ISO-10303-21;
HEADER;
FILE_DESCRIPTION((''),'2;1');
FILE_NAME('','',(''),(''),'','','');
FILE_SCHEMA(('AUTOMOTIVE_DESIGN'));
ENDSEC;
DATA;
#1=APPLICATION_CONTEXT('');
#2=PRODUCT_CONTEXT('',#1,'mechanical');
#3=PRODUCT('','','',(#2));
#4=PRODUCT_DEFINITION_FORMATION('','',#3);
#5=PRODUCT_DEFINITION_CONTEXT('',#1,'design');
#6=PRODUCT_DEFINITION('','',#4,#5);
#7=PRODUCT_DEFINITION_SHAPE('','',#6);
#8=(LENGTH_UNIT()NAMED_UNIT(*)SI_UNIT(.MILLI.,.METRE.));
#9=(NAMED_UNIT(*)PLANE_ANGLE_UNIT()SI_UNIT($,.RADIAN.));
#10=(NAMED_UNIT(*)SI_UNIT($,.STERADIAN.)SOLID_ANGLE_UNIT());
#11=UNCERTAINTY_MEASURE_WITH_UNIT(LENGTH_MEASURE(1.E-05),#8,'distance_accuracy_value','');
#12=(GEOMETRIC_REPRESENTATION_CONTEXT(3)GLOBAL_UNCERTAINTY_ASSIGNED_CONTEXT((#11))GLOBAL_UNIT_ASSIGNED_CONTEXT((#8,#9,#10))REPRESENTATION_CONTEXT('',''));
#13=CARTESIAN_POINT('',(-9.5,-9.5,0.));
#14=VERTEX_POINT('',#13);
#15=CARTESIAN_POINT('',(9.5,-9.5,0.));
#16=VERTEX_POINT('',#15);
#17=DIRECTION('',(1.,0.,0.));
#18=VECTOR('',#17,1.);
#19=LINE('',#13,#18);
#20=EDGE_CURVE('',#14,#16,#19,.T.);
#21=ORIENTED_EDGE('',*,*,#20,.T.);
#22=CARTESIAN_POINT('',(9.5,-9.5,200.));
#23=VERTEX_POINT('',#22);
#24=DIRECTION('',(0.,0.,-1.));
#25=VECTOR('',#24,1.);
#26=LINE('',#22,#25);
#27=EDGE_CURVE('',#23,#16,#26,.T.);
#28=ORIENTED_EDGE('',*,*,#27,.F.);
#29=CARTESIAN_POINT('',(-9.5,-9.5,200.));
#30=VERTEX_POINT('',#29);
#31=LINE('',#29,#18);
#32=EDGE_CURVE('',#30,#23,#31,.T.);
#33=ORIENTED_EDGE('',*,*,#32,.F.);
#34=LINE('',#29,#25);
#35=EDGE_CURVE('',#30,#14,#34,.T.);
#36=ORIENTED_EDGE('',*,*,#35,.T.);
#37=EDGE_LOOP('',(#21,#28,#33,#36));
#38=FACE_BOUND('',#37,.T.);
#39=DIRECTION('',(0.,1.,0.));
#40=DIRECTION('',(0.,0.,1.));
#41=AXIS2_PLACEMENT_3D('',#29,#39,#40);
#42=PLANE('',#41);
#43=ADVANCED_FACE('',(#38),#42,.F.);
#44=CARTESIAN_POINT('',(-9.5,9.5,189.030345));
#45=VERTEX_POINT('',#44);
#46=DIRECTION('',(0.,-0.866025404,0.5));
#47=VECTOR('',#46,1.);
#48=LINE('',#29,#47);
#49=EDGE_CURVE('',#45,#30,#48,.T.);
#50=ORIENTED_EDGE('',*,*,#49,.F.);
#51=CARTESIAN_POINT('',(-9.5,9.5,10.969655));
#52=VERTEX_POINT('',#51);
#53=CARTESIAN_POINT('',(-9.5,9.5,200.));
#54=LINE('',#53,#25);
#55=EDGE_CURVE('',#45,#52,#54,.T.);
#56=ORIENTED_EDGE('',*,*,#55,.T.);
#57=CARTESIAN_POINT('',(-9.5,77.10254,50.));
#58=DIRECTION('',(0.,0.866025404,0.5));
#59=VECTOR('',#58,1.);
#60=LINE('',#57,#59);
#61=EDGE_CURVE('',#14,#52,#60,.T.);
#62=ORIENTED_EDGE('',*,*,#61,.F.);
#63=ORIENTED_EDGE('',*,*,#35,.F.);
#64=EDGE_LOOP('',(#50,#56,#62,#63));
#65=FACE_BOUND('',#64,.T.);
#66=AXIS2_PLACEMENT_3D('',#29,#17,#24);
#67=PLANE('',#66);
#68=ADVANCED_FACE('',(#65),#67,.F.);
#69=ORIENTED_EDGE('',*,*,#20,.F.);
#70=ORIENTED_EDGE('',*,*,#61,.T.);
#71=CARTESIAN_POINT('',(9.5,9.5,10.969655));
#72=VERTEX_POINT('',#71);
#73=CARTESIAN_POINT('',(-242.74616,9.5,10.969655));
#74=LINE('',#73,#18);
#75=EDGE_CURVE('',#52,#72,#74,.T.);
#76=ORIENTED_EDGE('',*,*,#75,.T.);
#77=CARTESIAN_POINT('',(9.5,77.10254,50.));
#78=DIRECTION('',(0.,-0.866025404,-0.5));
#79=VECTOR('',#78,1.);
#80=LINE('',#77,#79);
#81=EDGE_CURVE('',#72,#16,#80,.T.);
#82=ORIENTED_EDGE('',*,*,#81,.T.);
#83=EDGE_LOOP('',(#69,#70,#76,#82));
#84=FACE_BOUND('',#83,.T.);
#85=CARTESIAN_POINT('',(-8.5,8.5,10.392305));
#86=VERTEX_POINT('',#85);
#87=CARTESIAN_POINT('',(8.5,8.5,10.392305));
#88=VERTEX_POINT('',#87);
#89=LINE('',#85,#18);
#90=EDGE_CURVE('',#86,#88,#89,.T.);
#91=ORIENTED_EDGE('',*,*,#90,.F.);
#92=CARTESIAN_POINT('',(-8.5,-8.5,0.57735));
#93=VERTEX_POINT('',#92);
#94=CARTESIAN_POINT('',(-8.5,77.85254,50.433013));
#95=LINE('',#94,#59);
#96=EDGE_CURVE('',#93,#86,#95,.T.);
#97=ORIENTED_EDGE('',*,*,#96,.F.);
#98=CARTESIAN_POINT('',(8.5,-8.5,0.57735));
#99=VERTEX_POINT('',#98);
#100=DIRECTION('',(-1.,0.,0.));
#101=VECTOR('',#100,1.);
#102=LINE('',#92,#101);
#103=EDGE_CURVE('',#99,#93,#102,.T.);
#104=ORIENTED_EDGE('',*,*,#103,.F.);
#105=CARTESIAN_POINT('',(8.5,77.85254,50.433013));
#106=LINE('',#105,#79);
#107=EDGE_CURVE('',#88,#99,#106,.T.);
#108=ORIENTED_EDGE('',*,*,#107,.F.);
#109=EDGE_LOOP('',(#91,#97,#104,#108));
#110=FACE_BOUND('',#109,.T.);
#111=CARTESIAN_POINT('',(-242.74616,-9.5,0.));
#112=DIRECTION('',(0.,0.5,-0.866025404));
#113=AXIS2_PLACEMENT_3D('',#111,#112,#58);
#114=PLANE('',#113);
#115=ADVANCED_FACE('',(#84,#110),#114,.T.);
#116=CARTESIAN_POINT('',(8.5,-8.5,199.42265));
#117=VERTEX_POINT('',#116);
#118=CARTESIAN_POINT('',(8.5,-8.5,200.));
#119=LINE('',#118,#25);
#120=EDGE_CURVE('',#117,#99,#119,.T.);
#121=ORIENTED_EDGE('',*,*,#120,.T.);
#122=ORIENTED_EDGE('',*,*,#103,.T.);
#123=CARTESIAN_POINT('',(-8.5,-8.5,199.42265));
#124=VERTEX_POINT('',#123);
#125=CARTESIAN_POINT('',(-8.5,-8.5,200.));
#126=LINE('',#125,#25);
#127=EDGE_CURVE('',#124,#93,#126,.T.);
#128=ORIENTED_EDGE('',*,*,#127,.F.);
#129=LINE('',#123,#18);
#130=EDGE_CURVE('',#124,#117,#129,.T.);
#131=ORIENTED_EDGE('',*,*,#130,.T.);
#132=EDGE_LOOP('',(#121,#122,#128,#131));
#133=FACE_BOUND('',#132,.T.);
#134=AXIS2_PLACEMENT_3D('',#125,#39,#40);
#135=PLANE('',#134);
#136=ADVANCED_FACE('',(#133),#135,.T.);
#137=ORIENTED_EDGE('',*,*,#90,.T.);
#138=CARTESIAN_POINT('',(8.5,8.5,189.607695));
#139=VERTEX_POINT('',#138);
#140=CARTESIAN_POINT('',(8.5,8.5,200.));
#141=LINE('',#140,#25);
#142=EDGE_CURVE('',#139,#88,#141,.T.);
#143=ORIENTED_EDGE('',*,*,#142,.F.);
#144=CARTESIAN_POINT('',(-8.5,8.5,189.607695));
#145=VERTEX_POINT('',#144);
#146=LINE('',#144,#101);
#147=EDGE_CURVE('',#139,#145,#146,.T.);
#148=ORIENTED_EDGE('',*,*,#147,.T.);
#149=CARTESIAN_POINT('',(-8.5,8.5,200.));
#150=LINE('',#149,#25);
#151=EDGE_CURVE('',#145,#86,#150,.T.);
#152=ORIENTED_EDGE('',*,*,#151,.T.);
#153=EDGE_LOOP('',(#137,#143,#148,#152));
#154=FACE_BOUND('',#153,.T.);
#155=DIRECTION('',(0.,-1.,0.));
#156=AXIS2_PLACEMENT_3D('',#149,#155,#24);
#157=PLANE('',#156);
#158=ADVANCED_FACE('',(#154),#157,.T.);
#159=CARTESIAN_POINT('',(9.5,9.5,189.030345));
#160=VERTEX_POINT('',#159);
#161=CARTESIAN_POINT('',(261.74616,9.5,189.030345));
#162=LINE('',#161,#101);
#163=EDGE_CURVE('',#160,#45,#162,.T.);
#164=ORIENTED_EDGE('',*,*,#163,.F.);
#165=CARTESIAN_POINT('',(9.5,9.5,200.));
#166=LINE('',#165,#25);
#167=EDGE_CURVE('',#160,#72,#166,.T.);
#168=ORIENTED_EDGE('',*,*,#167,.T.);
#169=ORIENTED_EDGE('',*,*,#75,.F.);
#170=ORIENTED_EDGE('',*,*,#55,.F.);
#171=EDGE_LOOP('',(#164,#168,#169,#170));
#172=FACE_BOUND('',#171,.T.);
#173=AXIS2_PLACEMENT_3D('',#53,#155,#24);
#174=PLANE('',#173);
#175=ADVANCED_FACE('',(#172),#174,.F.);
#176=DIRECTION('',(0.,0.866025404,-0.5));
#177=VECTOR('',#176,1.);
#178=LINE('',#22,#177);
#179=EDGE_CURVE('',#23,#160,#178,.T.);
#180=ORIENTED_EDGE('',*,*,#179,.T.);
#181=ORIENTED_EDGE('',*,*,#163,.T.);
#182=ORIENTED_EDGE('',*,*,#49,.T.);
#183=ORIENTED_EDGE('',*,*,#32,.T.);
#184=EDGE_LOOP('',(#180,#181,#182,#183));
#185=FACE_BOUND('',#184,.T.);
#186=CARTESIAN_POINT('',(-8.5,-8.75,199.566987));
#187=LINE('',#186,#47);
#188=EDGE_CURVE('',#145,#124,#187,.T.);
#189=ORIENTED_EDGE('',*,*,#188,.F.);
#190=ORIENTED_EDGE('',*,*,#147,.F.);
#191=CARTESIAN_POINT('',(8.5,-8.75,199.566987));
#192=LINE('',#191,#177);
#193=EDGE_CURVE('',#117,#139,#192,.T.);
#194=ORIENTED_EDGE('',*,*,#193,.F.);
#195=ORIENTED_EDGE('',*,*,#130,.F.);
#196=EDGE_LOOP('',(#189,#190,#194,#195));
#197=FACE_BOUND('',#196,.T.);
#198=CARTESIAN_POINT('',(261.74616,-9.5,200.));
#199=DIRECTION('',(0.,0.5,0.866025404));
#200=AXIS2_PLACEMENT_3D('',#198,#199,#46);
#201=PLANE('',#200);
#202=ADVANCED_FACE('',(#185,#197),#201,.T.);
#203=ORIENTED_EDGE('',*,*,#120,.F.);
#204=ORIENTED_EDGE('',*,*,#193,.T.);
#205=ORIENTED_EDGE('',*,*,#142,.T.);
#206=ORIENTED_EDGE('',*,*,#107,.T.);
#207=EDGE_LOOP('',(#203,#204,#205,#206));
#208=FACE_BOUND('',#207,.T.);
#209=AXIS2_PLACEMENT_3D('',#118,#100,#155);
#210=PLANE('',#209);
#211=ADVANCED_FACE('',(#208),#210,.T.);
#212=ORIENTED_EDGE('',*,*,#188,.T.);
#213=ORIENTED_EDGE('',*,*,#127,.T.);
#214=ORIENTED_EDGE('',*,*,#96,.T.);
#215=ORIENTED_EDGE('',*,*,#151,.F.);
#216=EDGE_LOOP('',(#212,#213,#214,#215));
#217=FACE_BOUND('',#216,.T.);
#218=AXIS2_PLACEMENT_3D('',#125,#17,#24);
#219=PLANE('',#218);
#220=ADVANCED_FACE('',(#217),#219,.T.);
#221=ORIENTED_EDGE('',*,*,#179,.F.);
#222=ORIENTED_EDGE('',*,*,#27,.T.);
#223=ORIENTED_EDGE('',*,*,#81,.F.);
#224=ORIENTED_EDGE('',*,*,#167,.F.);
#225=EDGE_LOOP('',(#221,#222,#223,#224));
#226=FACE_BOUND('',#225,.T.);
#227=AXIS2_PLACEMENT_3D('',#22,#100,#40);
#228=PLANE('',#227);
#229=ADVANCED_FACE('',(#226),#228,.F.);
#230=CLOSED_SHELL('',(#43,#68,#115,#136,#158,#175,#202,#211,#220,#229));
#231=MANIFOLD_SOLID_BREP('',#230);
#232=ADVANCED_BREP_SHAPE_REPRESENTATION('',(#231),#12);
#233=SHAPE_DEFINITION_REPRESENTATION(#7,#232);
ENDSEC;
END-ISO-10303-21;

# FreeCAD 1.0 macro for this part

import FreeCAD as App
import Part
import Sketcher
Q = App.Units.Quantity

doc = App.newDocument("Part")
body = doc.addObject("PartDesign::Body", "Body")

# Sketch on XY plane
sketch1 = doc.addObject("Sketcher::SketchObject", "Sketch")
body.addObject(sketch1)
sketch1.AttachmentSupport = (doc.XY_Plane, [""])
sketch1.MapMode = "FlatFace"
sketch1.addGeometry([
    Part.LineSegment(App.Vector(-10, 10, 0), App.Vector(-10, -10, 0)),  # 0
    Part.LineSegment(App.Vector(-10, -10, 0), App.Vector(10, -10, 0)),  # 1
    Part.LineSegment(App.Vector(10, -10, 0), App.Vector(10, 10, 0)),  # 2
    Part.LineSegment(App.Vector(10, 10, 0), App.Vector(-10, 10, 0)),  # 3
    Part.LineSegment(App.Vector(8, -8, 0), App.Vector(-8, -8, 0)),  # 4
    Part.LineSegment(App.Vector(-8, -8, 0), App.Vector(-8, 8, 0)),  # 5
    Part.LineSegment(App.Vector(-8, 8, 0), App.Vector(8, 8, 0)),  # 6
    Part.LineSegment(App.Vector(8, 8, 0), App.Vector(8, -8, 0)),  # 7
], False)
sketch1.addConstraint([
    Sketcher.Constraint("Coincident", 0, 2, 1, 1),
    Sketcher.Constraint("Coincident", 1, 2, 2, 1),
    Sketcher.Constraint("Coincident", 2, 2, 3, 1),
    Sketcher.Constraint("Coincident", 3, 2, 0, 1),
    Sketcher.Constraint("Coincident", 4, 2, 5, 1),
    Sketcher.Constraint("Coincident", 5, 2, 6, 1),
    Sketcher.Constraint("Coincident", 6, 2, 7, 1),
    Sketcher.Constraint("Coincident", 7, 2, 4, 1),
    Sketcher.Constraint("Vertical", 0),
    Sketcher.Constraint("Horizontal", 1),
    Sketcher.Constraint("Vertical", 2),
    Sketcher.Constraint("Horizontal", 3),
    Sketcher.Constraint("Horizontal", 4),
    Sketcher.Constraint("Vertical", 5),
    Sketcher.Constraint("Horizontal", 6),
    Sketcher.Constraint("Vertical", 7),
    Sketcher.Constraint("Symmetric", 0, 2, 2, 2, -1, 1),
    Sketcher.Constraint("Symmetric", 4, 2, 6, 2, -1, 1),
    Sketcher.Constraint("Equal", 3, 0),
    Sketcher.Constraint("Equal", 6, 5),
    Sketcher.Constraint("DistanceX", 1, 1, 1, 2, 19.0),
    Sketcher.Constraint("DistanceX", 4, 2, 4, 1, 17.0),
])
pad1 = doc.addObject("PartDesign::Pad", "Pad")
body.addObject(pad1)
pad1.Profile = sketch1
pad1.Length = 200

# Sketch on YZ plane
sketch2 = doc.addObject("Sketcher::SketchObject", "Sketch001")
body.addObject(sketch2)
sketch2.AttachmentSupport = (doc.YZ_Plane, [""])
sketch2.MapMode = "FlatFace"
sketch2.AttachmentOffset = App.Placement(App.Vector(0, 0, 9.5), App.Rotation())
sketch2.addGeometry([
    Part.LineSegment(App.Vector(-366, 406, 0), App.Vector(-10, 200, 0)),  # 0
    Part.LineSegment(App.Vector(-10, 200, 0), App.Vector(10, 189, 0)),  # 1
    Part.LineSegment(App.Vector(10, 189, 0), App.Vector(366, -17, 0)),  # 2
    Part.LineSegment(App.Vector(366, -17, 0), App.Vector(778, 696, 0)),  # 3
    Part.LineSegment(App.Vector(778, 696, 0), App.Vector(46, 1119, 0)),  # 4
    Part.LineSegment(App.Vector(46, 1119, 0), App.Vector(-366, 406, 0)),  # 5
], False)
sketch2.addConstraint([
    Sketcher.Constraint("Coincident", 0, 2, 1, 1),
    Sketcher.Constraint("Coincident", 1, 2, 2, 1),
    Sketcher.Constraint("Coincident", 2, 2, 3, 1),
    Sketcher.Constraint("Coincident", 3, 2, 4, 1),
    Sketcher.Constraint("Coincident", 4, 2, 5, 1),
    Sketcher.Constraint("Coincident", 5, 2, 0, 1),
    Sketcher.Constraint("Parallel", 0, 1),
    Sketcher.Constraint("Parallel", 1, 2),
    Sketcher.Constraint("Perpendicular", 2, 3),
    Sketcher.Constraint("Perpendicular", 3, 4),
    Sketcher.Constraint("Perpendicular", 4, 5),
    Sketcher.Constraint("Equal", 0, 2),
    Sketcher.Constraint("Angle", 0, Q("-30 deg")),
    Sketcher.Constraint("DistanceY", -1, 1, 0, 2, 200.0),
    Sketcher.Constraint("DistanceX", 0, 2, 1, 2, 19.0),
    Sketcher.Constraint("DistanceX", 0, 2, -1, 1, 9.5),
    Sketcher.Constraint("Distance", 4, 845.541202),
    Sketcher.Constraint("Distance", 3, 823.601891),
])
pocket1 = doc.addObject("PartDesign::Pocket", "Pocket")
body.addObject(pocket1)
pocket1.Profile = sketch2
pocket1.Type = "ThroughAll"
pocket1.Midplane = True

# Sketch on YZ plane
sketch3 = doc.addObject("Sketcher::SketchObject", "Sketch002")
body.addObject(sketch3)
sketch3.AttachmentSupport = (doc.YZ_Plane, [""])
sketch3.MapMode = "FlatFace"
sketch3.AttachmentOffset = App.Placement(App.Vector(0, 0, 9.5), App.Rotation())
sketch3.addGeometry([
    Part.LineSegment(App.Vector(-10, 0, 0), App.Vector(-366, -206, 0)),  # 0
    Part.LineSegment(App.Vector(-366, -206, 0), App.Vector(46, -919, 0)),  # 1
    Part.LineSegment(App.Vector(46, -919, 0), App.Vector(778, -496, 0)),  # 2
    Part.LineSegment(App.Vector(778, -496, 0), App.Vector(366, 217, 0)),  # 3
    Part.LineSegment(App.Vector(366, 217, 0), App.Vector(10, 11, 0)),  # 4
    Part.LineSegment(App.Vector(10, 11, 0), App.Vector(-10, 0, 0)),  # 5
], False)
sketch3.addConstraint([
    Sketcher.Constraint("Coincident", 0, 2, 1, 1),
    Sketcher.Constraint("Coincident", 1, 2, 2, 1),
    Sketcher.Constraint("Coincident", 2, 2, 3, 1),
    Sketcher.Constraint("Coincident", 3, 2, 4, 1),
    Sketcher.Constraint("Coincident", 4, 2, 5, 1),
    Sketcher.Constraint("Coincident", 5, 2, 0, 1),
    Sketcher.Constraint("PointOnObject", 5, 2, -1),
    Sketcher.Constraint("Perpendicular", 0, 1),
    Sketcher.Constraint("Perpendicular", 1, 2),
    Sketcher.Constraint("Perpendicular", 2, 3),
    Sketcher.Constraint("Perpendicular", 3, 4),
    Sketcher.Constraint("Parallel", 4, 5),
    Sketcher.Constraint("Equal", 0, 4),
    Sketcher.Constraint("Angle", 0, Q("-150 deg")),
    Sketcher.Constraint("DistanceX", 5, 2, 4, 2, 19.0),
    Sketcher.Constraint("DistanceX", -1, 1, 4, 2, 9.5),
    Sketcher.Constraint("Distance", 2, 845.541202),
    Sketcher.Constraint("Distance", 1, 823.601891),
])
pocket2 = doc.addObject("PartDesign::Pocket", "Pocket001")
body.addObject(pocket2)
pocket2.Profile = sketch3
pocket2.Type = "ThroughAll"
pocket2.Midplane = True

doc.recompute()
